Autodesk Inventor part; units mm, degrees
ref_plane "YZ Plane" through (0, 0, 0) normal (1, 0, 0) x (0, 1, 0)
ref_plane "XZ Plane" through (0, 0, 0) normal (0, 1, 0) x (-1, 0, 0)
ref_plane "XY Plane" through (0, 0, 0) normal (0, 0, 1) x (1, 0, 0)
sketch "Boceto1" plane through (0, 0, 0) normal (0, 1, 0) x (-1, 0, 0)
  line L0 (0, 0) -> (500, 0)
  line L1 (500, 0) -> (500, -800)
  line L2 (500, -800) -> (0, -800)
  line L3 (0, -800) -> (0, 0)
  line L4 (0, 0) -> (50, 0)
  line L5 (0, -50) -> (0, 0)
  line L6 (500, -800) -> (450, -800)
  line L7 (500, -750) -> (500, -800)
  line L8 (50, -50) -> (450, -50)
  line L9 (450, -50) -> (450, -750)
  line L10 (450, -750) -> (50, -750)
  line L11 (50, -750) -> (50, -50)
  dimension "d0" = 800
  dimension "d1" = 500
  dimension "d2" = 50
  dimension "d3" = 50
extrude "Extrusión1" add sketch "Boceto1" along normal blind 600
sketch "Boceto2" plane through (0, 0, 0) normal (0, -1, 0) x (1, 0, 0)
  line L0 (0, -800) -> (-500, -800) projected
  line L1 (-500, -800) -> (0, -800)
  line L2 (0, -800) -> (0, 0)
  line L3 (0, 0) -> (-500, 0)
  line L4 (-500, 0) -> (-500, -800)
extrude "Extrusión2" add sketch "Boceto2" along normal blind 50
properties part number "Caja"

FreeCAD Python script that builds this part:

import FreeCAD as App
import Part
import Sketcher
from FreeCAD import Vector
Q = App.Units.Quantity

doc = App.newDocument("Part")
params = doc.addObject("Spreadsheet::Sheet", "Params")
for row, (alias, value) in enumerate([
    ("sketch1_width", "500 mm"),
    ("sketch1_height", "800 mm"),
    ("pad1_length", "600 mm"),
    ("sketch2_width", "500 mm"),
    ("sketch2_height", "800 mm"),
    ("pad2_length", "50 mm"),
], start=1):
    params.set(f"A{row}", alias)
    params.set(f"B{row}", "=" + value)
    params.setAlias(f"B{row}", alias)

body = doc.addObject("PartDesign::Body", "Body")

# Sketch on XZ plane
sketch1 = doc.addObject("Sketcher::SketchObject", "Sketch")
body.addObject(sketch1)
sketch1.AttachmentSupport = (doc.XZ_Plane, [""])
sketch1.MapMode = "FlatFace"
sketch1.addGeometry(Part.LineSegment(Vector(-500, 0, 0), Vector(0, 0, 0)), False)
sketch1.addGeometry(Part.LineSegment(Vector(0, 0, 0), Vector(0, -800, 0)), False)
sketch1.addGeometry(Part.LineSegment(Vector(0, -800, 0), Vector(-500, -800, 0)), False)
sketch1.addGeometry(Part.LineSegment(Vector(-500, -800, 0), Vector(-500, 0, 0)), False)
sketch1.addGeometry(Part.LineSegment(Vector(-50, -750, 0), Vector(-50, -50, 0)), False)
sketch1.addGeometry(Part.LineSegment(Vector(-50, -50, 0), Vector(-450, -50, 0)), False)
sketch1.addGeometry(Part.LineSegment(Vector(-450, -50, 0), Vector(-450, -750, 0)), False)
sketch1.addGeometry(Part.LineSegment(Vector(-450, -750, 0), Vector(-50, -750, 0)), False)
sketch1.addConstraint(Sketcher.Constraint("Coincident", 0, 2, 1, 1))
sketch1.addConstraint(Sketcher.Constraint("Coincident", 1, 2, 2, 1))
sketch1.addConstraint(Sketcher.Constraint("Coincident", 2, 2, 3, 1))
sketch1.addConstraint(Sketcher.Constraint("Coincident", 3, 2, 0, 1))
sketch1.addConstraint(Sketcher.Constraint("Coincident", 4, 2, 5, 1))
sketch1.addConstraint(Sketcher.Constraint("Coincident", 5, 2, 6, 1))
sketch1.addConstraint(Sketcher.Constraint("Coincident", 6, 2, 7, 1))
sketch1.addConstraint(Sketcher.Constraint("Coincident", 7, 2, 4, 1))
sketch1.addConstraint(Sketcher.Constraint("Horizontal", 0))
sketch1.addConstraint(Sketcher.Constraint("Vertical", 1))
sketch1.addConstraint(Sketcher.Constraint("Horizontal", 2))
sketch1.addConstraint(Sketcher.Constraint("Vertical", 3))
sketch1.addConstraint(Sketcher.Constraint("Vertical", 4))
sketch1.addConstraint(Sketcher.Constraint("Horizontal", 5))
sketch1.addConstraint(Sketcher.Constraint("Vertical", 6))
sketch1.addConstraint(Sketcher.Constraint("Horizontal", 7))
sketch1.addConstraint(Sketcher.Constraint("Coincident", 0, 2, -1, 1))
sketch1.addConstraint(Sketcher.Constraint("DistanceX", 0, 1, 0, 2, Q("500 mm")))
sketch1.addConstraint(Sketcher.Constraint("DistanceY", 1, 2, 1, 1, Q("800 mm")))
sketch1.addConstraint(Sketcher.Constraint("DistanceX", 4, 2, -1, 1, Q("50 mm")))
sketch1.addConstraint(Sketcher.Constraint("DistanceY", 4, 2, -1, 1, Q("50 mm")))
sketch1.addConstraint(Sketcher.Constraint("DistanceX", 3, 2, 5, 2, Q("50 mm")))
sketch1.addConstraint(Sketcher.Constraint("DistanceY", 2, 2, 6, 2, Q("50 mm")))
sketch1.setExpression("Constraints[17]", "Params.sketch1_width")
sketch1.setExpression("Constraints[18]", "Params.sketch1_height")
pad1 = doc.addObject("PartDesign::Pad", "Pad")
body.addObject(pad1)
pad1.Profile = sketch1
pad1.setExpression("Length", "Params.pad1_length")
pad1.Reversed = True

# Sketch on XZ plane
sketch2 = doc.addObject("Sketcher::SketchObject", "Sketch001")
body.addObject(sketch2)
sketch2.AttachmentSupport = (doc.XZ_Plane, [""])
sketch2.MapMode = "FlatFace"
sketch2.addGeometry(Part.LineSegment(Vector(-500, -800, 0), Vector(0, -800, 0)), False)
sketch2.addGeometry(Part.LineSegment(Vector(0, -800, 0), Vector(0, 0, 0)), False)
sketch2.addGeometry(Part.LineSegment(Vector(0, 0, 0), Vector(-500, 0, 0)), False)
sketch2.addGeometry(Part.LineSegment(Vector(-500, 0, 0), Vector(-500, -800, 0)), False)
sketch2.addConstraint(Sketcher.Constraint("Coincident", 0, 2, 1, 1))
sketch2.addConstraint(Sketcher.Constraint("Coincident", 1, 2, 2, 1))
sketch2.addConstraint(Sketcher.Constraint("Coincident", 2, 2, 3, 1))
sketch2.addConstraint(Sketcher.Constraint("Coincident", 3, 2, 0, 1))
sketch2.addConstraint(Sketcher.Constraint("Horizontal", 0))
sketch2.addConstraint(Sketcher.Constraint("Vertical", 1))
sketch2.addConstraint(Sketcher.Constraint("Horizontal", 2))
sketch2.addConstraint(Sketcher.Constraint("Vertical", 3))
sketch2.addConstraint(Sketcher.Constraint("Coincident", 1, 2, -1, 1))
sketch2.addConstraint(Sketcher.Constraint("DistanceX", 0, 1, 0, 2, Q("500 mm")))
sketch2.addConstraint(Sketcher.Constraint("DistanceY", 1, 1, 1, 2, Q("800 mm")))
sketch2.setExpression("Constraints[9]", "Params.sketch2_width")
sketch2.setExpression("Constraints[10]", "Params.sketch2_height")
pad2 = doc.addObject("PartDesign::Pad", "Pad001")
body.addObject(pad2)
pad2.Profile = sketch2
pad2.setExpression("Length", "Params.pad2_length")

doc.recompute()
